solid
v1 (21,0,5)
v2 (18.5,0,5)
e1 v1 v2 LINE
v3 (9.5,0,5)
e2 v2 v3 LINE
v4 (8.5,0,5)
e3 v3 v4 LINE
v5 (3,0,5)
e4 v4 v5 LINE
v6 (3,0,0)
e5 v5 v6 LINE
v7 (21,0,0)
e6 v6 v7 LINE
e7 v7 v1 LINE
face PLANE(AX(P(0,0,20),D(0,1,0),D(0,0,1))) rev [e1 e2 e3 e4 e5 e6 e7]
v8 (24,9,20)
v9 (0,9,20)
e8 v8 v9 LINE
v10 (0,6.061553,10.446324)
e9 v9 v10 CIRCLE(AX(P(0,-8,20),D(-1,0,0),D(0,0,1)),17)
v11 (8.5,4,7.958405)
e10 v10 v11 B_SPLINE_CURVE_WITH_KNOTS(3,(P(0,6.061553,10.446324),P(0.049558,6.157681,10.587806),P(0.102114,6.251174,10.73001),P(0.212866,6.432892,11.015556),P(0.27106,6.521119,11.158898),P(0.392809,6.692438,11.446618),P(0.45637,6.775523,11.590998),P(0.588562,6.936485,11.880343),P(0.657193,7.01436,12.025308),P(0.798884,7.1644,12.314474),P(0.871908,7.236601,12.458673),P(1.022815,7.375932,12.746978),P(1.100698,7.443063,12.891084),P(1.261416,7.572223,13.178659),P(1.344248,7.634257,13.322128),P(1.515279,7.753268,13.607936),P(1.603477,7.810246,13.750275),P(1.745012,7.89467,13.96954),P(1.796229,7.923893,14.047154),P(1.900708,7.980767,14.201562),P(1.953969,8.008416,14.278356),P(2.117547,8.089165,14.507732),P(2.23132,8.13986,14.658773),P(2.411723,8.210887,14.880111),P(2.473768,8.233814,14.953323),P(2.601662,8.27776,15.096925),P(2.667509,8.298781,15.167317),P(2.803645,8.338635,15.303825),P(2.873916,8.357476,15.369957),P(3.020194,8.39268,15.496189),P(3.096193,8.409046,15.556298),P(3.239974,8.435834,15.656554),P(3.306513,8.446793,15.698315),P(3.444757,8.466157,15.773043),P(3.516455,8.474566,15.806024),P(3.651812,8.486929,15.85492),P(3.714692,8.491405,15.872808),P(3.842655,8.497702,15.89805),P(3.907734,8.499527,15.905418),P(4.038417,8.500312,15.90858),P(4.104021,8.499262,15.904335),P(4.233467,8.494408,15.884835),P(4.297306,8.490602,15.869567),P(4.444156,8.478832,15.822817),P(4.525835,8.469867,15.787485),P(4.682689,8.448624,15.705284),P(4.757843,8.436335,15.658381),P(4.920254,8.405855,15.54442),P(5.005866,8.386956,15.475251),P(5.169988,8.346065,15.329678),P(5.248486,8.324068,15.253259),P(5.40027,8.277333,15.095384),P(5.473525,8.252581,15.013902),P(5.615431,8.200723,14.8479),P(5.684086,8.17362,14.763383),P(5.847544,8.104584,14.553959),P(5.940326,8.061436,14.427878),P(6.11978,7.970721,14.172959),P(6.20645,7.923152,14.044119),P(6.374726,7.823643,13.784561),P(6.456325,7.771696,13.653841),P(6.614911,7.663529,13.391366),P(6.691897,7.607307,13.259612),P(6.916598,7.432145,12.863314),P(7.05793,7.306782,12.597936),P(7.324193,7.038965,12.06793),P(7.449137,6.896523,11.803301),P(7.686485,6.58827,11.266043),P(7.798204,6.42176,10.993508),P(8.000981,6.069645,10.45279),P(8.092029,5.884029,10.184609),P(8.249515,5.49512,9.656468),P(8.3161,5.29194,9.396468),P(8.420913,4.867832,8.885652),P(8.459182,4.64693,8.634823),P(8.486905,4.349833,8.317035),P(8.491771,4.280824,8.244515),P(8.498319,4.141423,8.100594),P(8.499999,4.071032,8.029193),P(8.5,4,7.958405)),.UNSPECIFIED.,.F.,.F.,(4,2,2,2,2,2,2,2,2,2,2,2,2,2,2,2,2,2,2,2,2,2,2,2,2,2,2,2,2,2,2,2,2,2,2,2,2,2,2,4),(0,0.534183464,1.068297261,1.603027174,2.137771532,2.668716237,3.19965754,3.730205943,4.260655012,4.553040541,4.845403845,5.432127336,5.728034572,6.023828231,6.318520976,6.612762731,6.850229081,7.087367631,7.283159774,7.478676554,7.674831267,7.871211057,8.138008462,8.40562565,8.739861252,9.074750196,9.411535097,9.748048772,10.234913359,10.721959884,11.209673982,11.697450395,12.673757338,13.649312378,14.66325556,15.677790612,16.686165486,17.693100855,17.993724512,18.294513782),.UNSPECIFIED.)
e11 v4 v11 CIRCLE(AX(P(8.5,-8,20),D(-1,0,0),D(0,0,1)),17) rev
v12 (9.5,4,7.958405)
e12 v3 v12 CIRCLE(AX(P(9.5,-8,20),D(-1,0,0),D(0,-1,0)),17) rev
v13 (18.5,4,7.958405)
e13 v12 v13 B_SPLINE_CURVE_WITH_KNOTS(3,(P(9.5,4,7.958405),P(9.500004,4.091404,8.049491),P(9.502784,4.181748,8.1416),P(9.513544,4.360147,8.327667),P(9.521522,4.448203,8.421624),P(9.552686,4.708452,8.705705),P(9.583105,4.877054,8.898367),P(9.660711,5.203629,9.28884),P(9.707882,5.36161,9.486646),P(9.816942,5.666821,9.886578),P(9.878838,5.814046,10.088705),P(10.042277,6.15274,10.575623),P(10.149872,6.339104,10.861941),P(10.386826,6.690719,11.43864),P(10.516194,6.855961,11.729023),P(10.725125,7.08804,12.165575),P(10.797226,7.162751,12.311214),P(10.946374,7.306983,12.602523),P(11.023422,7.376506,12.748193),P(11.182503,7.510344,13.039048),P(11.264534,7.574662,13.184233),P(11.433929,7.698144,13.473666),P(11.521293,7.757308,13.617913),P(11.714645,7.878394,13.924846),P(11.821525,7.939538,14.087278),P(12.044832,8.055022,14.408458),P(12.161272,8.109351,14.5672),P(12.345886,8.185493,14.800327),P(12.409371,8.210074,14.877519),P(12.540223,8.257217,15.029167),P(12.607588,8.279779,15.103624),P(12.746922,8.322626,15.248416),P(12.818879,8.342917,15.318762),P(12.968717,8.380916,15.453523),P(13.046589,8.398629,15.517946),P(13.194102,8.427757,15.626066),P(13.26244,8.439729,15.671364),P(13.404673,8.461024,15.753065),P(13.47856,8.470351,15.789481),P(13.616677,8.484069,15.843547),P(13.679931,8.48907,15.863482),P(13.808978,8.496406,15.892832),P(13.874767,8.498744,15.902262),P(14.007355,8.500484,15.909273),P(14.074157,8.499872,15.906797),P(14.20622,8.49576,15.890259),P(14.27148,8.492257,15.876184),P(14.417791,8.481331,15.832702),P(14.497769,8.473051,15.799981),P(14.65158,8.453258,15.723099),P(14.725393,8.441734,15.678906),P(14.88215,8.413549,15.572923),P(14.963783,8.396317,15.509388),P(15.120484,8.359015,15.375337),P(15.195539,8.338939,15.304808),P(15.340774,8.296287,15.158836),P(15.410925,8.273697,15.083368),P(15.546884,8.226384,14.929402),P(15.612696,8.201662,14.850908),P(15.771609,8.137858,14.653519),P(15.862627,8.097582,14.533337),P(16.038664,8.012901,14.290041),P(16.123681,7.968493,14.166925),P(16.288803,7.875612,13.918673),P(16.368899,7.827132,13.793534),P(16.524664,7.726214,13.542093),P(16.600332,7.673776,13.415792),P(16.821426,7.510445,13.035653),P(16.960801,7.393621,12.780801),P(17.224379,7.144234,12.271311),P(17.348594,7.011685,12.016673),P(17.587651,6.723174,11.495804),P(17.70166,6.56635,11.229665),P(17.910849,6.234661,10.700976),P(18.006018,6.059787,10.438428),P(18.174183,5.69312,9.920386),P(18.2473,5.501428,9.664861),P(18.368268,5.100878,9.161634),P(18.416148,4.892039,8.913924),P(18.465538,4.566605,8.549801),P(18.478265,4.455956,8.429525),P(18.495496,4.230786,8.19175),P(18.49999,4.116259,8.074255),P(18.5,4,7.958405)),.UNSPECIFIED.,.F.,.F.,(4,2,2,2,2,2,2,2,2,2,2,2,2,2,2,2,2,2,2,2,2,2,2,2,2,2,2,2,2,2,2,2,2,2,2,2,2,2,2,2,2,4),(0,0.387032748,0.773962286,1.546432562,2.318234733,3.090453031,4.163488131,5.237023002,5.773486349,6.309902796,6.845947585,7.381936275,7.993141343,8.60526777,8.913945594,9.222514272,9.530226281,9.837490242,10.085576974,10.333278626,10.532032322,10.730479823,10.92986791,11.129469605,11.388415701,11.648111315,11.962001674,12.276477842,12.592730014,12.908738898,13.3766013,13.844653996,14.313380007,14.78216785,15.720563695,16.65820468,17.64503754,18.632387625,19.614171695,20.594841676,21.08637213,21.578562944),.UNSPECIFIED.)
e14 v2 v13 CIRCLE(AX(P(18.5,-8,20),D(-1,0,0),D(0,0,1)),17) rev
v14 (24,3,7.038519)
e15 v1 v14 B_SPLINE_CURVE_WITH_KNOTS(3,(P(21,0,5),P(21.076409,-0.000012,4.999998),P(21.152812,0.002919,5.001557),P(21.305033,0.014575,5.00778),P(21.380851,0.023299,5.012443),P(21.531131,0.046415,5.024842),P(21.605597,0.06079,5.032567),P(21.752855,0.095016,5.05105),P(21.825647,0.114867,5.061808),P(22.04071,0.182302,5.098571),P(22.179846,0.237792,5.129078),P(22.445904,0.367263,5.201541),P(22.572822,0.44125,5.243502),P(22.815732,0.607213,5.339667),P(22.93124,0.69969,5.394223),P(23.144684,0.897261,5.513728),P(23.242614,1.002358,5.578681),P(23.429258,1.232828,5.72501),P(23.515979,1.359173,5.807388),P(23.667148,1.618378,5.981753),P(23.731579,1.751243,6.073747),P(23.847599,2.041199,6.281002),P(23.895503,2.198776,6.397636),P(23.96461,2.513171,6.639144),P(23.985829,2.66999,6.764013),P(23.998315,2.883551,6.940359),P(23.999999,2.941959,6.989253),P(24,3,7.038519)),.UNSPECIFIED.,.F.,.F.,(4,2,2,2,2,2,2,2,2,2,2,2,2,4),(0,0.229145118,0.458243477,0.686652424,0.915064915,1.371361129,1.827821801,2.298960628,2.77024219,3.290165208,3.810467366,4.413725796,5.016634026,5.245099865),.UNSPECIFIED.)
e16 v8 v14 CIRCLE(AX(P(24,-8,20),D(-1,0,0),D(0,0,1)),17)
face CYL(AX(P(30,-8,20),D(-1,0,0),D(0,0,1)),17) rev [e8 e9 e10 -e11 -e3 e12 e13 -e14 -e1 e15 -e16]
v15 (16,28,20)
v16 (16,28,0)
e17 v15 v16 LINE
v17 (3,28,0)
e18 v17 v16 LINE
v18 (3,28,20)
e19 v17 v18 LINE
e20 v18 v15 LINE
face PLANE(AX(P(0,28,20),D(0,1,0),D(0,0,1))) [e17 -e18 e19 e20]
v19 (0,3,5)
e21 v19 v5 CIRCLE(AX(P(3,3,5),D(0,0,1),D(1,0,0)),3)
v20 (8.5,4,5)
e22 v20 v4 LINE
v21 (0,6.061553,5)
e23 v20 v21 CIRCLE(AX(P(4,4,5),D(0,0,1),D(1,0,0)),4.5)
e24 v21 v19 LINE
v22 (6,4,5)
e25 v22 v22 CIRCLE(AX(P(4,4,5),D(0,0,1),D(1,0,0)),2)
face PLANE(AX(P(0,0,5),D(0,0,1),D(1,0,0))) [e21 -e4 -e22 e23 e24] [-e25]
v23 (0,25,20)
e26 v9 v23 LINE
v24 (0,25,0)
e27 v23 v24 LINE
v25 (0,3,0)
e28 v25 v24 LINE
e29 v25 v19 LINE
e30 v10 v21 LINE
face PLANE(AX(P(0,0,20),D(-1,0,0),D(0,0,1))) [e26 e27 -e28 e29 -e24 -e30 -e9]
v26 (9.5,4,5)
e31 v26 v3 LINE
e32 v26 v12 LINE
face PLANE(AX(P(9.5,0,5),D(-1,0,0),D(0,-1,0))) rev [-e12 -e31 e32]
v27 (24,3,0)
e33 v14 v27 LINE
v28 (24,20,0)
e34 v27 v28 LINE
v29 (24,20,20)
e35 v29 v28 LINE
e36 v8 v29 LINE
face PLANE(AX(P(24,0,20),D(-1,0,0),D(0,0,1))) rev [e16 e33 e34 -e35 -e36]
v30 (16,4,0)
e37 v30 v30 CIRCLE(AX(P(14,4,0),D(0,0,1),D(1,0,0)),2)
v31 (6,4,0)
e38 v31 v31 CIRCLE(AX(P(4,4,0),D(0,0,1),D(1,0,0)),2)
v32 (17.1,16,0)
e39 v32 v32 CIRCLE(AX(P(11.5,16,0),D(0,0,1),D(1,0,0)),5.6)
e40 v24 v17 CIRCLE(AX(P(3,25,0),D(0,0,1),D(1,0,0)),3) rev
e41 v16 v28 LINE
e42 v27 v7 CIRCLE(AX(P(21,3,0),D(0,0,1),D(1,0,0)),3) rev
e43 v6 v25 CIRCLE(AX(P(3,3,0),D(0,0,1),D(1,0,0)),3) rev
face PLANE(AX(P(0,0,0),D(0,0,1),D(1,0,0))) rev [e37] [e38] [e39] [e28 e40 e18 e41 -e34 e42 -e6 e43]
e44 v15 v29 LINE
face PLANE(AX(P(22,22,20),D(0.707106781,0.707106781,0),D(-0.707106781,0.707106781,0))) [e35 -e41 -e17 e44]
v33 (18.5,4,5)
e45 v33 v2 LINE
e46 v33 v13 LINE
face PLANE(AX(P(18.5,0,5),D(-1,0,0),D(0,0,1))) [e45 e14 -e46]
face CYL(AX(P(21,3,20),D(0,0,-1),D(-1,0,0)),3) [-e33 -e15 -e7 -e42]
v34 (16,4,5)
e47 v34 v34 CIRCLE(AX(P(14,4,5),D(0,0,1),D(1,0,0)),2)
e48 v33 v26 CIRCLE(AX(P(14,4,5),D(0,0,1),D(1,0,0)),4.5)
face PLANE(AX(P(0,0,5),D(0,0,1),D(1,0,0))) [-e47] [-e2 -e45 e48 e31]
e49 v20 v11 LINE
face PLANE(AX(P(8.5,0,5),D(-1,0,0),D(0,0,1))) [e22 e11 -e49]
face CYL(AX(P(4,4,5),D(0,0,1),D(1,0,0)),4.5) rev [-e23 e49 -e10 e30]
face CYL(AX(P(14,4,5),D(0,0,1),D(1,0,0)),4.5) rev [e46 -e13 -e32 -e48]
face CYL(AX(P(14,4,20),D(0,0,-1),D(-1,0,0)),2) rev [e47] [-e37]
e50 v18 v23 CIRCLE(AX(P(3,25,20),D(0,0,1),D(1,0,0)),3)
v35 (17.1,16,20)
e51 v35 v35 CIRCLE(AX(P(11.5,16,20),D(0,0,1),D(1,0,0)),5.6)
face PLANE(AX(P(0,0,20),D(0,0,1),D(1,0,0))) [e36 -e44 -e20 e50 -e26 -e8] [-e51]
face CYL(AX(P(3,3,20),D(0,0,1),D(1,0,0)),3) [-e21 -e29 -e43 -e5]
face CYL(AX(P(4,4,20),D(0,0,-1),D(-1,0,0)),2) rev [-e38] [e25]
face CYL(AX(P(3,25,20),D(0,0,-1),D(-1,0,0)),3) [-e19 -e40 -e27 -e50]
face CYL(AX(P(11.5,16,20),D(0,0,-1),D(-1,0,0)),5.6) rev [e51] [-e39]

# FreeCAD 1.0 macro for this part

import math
import FreeCAD as App
import Part
import Sketcher

V = App.Vector
Q = App.Units.Quantity


def edges_at(feature, points):
    """Names of the edges that pass closest to the given points."""
    edges = feature.Shape.Edges
    near = lambda p: min(range(len(edges)), key=lambda i: edges[i].distToShape(Part.Vertex(*p))[0])
    return sorted({f"Edge{near(p) + 1}" for p in points})


def add_polygon(sketch, points):
    """Adds a closed chain of lines whose ends are joined by coincident constraints."""
    first, n = sketch.GeometryCount, len(points)
    for a, b in zip(points, points[1:] + points[:1]):
        sketch.addGeometry(Part.LineSegment(App.Vector(*a, 0), App.Vector(*b, 0)), False)
    for i in range(n):
        sketch.addConstraint(Sketcher.Constraint("Coincident", first + i, 2, first + (i + 1) % n, 1))

doc = App.newDocument("Part")
body = doc.addObject("PartDesign::Body", "Body")

# Sketch on XY plane
sketch1 = body.newObject("Sketcher::SketchObject", "Sketch")
sketch1.AttachmentSupport = (doc.getObject("XY_Plane"), [""])
sketch1.MapMode = "FlatFace"
add_polygon(sketch1, [(24, 20), (16, 28), (0, 28), (0, 0), (24, 0)])  # lines 0-4
sketch1.addGeometry(Part.Circle(V(4, 4, 0), V(0, 0, 1), 2), False)  # 5
sketch1.addGeometry(Part.Circle(V(14, 4, 0), V(0, 0, 1), 2), False)  # 6
sketch1.addGeometry(Part.Circle(V(11.5, 16, 0), V(0, 0, 1), 5.6), False)  # 7
sketch1.addConstraint([
    Sketcher.Constraint("Horizontal", 1),
    Sketcher.Constraint("Vertical", 2),
    Sketcher.Constraint("Horizontal", 3),
    Sketcher.Constraint("Vertical", 4),
    Sketcher.Constraint("Coincident", 2, 2, -1, 1),
    Sketcher.Constraint("Equal", 5, 6),
    Sketcher.Constraint("Horizontal", 5, 3, 6, 3),
    Sketcher.Constraint("Diameter", 5, Q("4 mm")),
    Sketcher.Constraint("Diameter", 7, Q("11.2 mm")),
    Sketcher.Constraint("DistanceX", 1, 2, 1, 1, Q("16 mm")),
    Sketcher.Constraint("DistanceX", 3, 1, 3, 2, Q("24 mm")),
    Sketcher.Constraint("DistanceY", 2, 2, 2, 1, Q("28 mm")),
    Sketcher.Constraint("DistanceY", 4, 1, 4, 2, Q("20 mm")),
    Sketcher.Constraint("DistanceX", -1, 1, 5, 3, Q("4 mm")),
    Sketcher.Constraint("DistanceY", -1, 1, 5, 3, Q("4 mm")),
    Sketcher.Constraint("DistanceX", -1, 1, 6, 3, Q("14 mm")),
    Sketcher.Constraint("DistanceY", -1, 1, 7, 3, Q("16 mm")),
    Sketcher.Constraint("DistanceX", -1, 1, 7, 3, Q("11.5 mm")),
])
pad1 = body.newObject("PartDesign::Pad", "Pad")
pad1.Profile = sketch1
pad1.Length = 20

# Sketch on YZ plane
sketch2 = body.newObject("Sketcher::SketchObject", "Sketch001")
sketch2.AttachmentSupport = (doc.getObject("YZ_Plane"), [""])
sketch2.MapMode = "FlatFace"
sketch2.addGeometry([
    Part.LineSegment(V(0, 20, 0), V(9, 20, 0)),
    Part.ArcOfCircle(Part.Circle(V(-8, 20, 0), V(0, 0, 1), 17), math.radians(-62), math.radians(0)),
    Part.LineSegment(V(0, 5, 0), V(0, 20, 0)),
], False)
sketch2.addConstraint([
    Sketcher.Constraint("Coincident", 0, 2, 1, 2),
    Sketcher.Constraint("Coincident", 1, 1, 2, 1),
    Sketcher.Constraint("Coincident", 2, 2, 0, 1),
    Sketcher.Constraint("Horizontal", 0),
    Sketcher.Constraint("Vertical", 2),
    Sketcher.Constraint("PointOnObject", 1, 1, -2),
    Sketcher.Constraint("Horizontal", 1, 3, 0, 2),
    Sketcher.Constraint("Radius", 1, Q("17 mm")),
    Sketcher.Constraint("DistanceX", 0, 1, 0, 2, Q("9 mm")),
    Sketcher.Constraint("DistanceY", -1, 1, 1, 3, Q("20 mm")),
])
pocket1 = body.newObject("PartDesign::Pocket", "Pocket")
pocket1.Profile = sketch2
pocket1.Length = 30
pocket1.Reversed = True

# Sketch on XY plane
sketch3 = body.newObject("Sketcher::SketchObject", "Sketch002")
sketch3.AttachmentSupport = (doc.getObject("XY_Plane"), [""])
sketch3.MapMode = "FlatFace"
sketch3.AttachmentOffset = App.Placement(V(0, 0, 20), App.Rotation())
sketch3.addGeometry([
    Part.ArcOfCircle(Part.Circle(V(14, 4, 0), V(0, 0, 1), 4.5), math.radians(0), math.radians(180)),  # 0
    Part.LineSegment(V(9.5, 4, 0), V(9.5, -0.5, 0)),  # 1
    Part.LineSegment(V(9.5, -0.5, 0), V(18.5, -0.5, 0)),  # 2
    Part.LineSegment(V(18.5, -0.5, 0), V(18.5, 4, 0)),  # 3
    Part.ArcOfCircle(Part.Circle(V(4, 4, 0), V(0, 0, 1), 4.5), math.radians(0), math.radians(207)),  # 4
    Part.LineSegment(V(0, 1.9, 0), V(0, -0.5, 0)),  # 5
    Part.LineSegment(V(0, -0.5, 0), V(8.5, -0.5, 0)),  # 6
    Part.LineSegment(V(8.5, -0.5, 0), V(8.5, 4, 0)),  # 7
], False)
sketch3.addConstraint([
    Sketcher.Constraint("Tangent", 0, 2, 1, 1),
    Sketcher.Constraint("Coincident", 1, 2, 2, 1),
    Sketcher.Constraint("Coincident", 2, 2, 3, 1),
    Sketcher.Constraint("Tangent", 3, 2, 0, 1),
    Sketcher.Constraint("Coincident", 4, 2, 5, 1),
    Sketcher.Constraint("Coincident", 5, 2, 6, 1),
    Sketcher.Constraint("Coincident", 6, 2, 7, 1),
    Sketcher.Constraint("Tangent", 7, 2, 4, 1),
    Sketcher.Constraint("Vertical", 1),
    Sketcher.Constraint("Horizontal", 2),
    Sketcher.Constraint("Vertical", 3),
    Sketcher.Constraint("Vertical", 5),
    Sketcher.Constraint("Horizontal", 6),
    Sketcher.Constraint("Vertical", 7),
    Sketcher.Constraint("Equal", 0, 4),
    Sketcher.Constraint("PointOnObject", 4, 2, -2),
    Sketcher.Constraint("Horizontal", 0, 3, 4, 3),
    Sketcher.Constraint("Horizontal", 2, 2, 5, 2),
    Sketcher.Constraint("Radius", 0, Q("4.5 mm")),
    Sketcher.Constraint("DistanceX", 6, 1, 6, 2, Q("8.5 mm")),
    Sketcher.Constraint("DistanceY", 1, 2, 1, 1, Q("4.5 mm")),
    Sketcher.Constraint("DistanceX", -1, 1, 0, 3, Q("14 mm")),
    Sketcher.Constraint("DistanceY", -1, 1, 0, 3, Q("4 mm")),
])
pocket2 = body.newObject("PartDesign::Pocket", "Pocket001")
pocket2.Profile = sketch3
pocket2.Length = 15
doc.recompute()

fillet = body.newObject("PartDesign::Fillet", "Fillet")
fillet.Base = (pocket2, edges_at(pocket2, [(0, 28, 10), (0, 0, 2.5), (24, 0, 2.5)]))
fillet.Radius = 3

doc.recompute()
